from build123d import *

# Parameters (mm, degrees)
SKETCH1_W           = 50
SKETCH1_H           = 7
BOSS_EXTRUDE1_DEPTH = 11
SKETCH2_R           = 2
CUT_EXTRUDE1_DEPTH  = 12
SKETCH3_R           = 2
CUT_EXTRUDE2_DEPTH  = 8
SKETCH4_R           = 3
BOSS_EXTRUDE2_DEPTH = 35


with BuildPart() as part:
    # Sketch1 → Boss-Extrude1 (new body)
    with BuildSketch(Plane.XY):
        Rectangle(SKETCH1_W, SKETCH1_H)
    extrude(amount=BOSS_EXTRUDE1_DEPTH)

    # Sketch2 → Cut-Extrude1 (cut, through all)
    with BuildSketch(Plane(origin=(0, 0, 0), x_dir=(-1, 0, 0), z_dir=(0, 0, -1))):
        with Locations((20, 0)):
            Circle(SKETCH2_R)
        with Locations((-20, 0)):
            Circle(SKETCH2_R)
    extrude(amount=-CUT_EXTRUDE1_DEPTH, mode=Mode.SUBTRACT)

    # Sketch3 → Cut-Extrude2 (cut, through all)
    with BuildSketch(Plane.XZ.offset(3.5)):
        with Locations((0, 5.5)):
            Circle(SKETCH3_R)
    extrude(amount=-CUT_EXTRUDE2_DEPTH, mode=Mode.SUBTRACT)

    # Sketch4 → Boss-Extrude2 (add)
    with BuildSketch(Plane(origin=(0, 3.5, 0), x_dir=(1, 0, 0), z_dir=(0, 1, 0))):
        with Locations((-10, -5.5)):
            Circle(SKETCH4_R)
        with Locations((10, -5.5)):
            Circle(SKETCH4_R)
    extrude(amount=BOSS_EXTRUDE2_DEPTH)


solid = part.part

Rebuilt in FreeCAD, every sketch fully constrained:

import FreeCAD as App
import Part
import Sketcher

doc = App.newDocument("Part")
body = doc.addObject("PartDesign::Body", "Body")

# Sketch on XY plane
sketch1 = body.newObject("Sketcher::SketchObject", "Sketch")
sketch1.AttachmentSupport = (doc.getObject("XY_Plane"), [""])
sketch1.MapMode = "FlatFace"
sketch1.addGeometry([
    Part.LineSegment(App.Vector(-25, 3.5, 0), App.Vector(-25, -3.5, 0)),
    Part.LineSegment(App.Vector(-25, -3.5, 0), App.Vector(25, -3.5, 0)),
    Part.LineSegment(App.Vector(25, -3.5, 0), App.Vector(25, 3.5, 0)),
    Part.LineSegment(App.Vector(25, 3.5, 0), App.Vector(-25, 3.5, 0)),
], False)
sketch1.addConstraint([
    Sketcher.Constraint("Coincident", 0, 2, 1, 1),
    Sketcher.Constraint("Coincident", 1, 2, 2, 1),
    Sketcher.Constraint("Coincident", 2, 2, 3, 1),
    Sketcher.Constraint("Coincident", 3, 2, 0, 1),
    Sketcher.Constraint("Vertical", 0),
    Sketcher.Constraint("Horizontal", 1),
    Sketcher.Constraint("Vertical", 2),
    Sketcher.Constraint("Horizontal", 3),
    Sketcher.Constraint("Symmetric", 0, 2, 2, 2, -1, 1),
    Sketcher.Constraint("DistanceX", 1, 1, 1, 2, 50.0),
    Sketcher.Constraint("DistanceY", 0, 2, 0, 1, 7.0),
])
pad1 = body.newObject("PartDesign::Pad", "Pad")
pad1.Profile = sketch1
pad1.Length = 11

# Sketch on XY plane
sketch2 = body.newObject("Sketcher::SketchObject", "Sketch001")
sketch2.AttachmentSupport = (doc.getObject("XY_Plane"), [""])
sketch2.MapMode = "FlatFace"
sketch2.addGeometry([
    Part.Circle(App.Vector(-20, 0, 0), App.Vector(0, 0, 1), 2),
    Part.Circle(App.Vector(20, 0, 0), App.Vector(0, 0, 1), 2),
], False)
sketch2.addConstraint([
    Sketcher.Constraint("Equal", 0, 1),
    Sketcher.Constraint("Symmetric", 0, 3, 1, 3, -1, 1),
    Sketcher.Constraint("PointOnObject", 0, 3, -1),
    Sketcher.Constraint("Diameter", 0, 4.0),
    Sketcher.Constraint("DistanceX", 0, 3, -1, 1, 20.0),
])
pocket1 = body.newObject("PartDesign::Pocket", "Pocket")
pocket1.Profile = sketch2
pocket1.Type = "ThroughAll"
pocket1.Reversed = True

# Sketch on XZ plane
sketch3 = body.newObject("Sketcher::SketchObject", "Sketch002")
sketch3.AttachmentSupport = (doc.getObject("XZ_Plane"), [""])
sketch3.MapMode = "FlatFace"
sketch3.AttachmentOffset = App.Placement(App.Vector(0, 0, 3.5), App.Rotation())
sketch3.addGeometry(Part.Circle(App.Vector(0, 5.5, 0), App.Vector(0, 0, 1), 2), False)
sketch3.addConstraint([
    Sketcher.Constraint("PointOnObject", 0, 3, -2),
    Sketcher.Constraint("Diameter", 0, 4.0),
    Sketcher.Constraint("DistanceY", -1, 1, 0, 3, 5.5),
])
pocket2 = body.newObject("PartDesign::Pocket", "Pocket001")
pocket2.Profile = sketch3
pocket2.Type = "ThroughAll"

# Sketch on XZ plane
sketch4 = body.newObject("Sketcher::SketchObject", "Sketch003")
sketch4.AttachmentSupport = (doc.getObject("XZ_Plane"), [""])
sketch4.MapMode = "FlatFace"
sketch4.AttachmentOffset = App.Placement(App.Vector(0, 0, -3.5), App.Rotation())
sketch4.addGeometry([
    Part.Circle(App.Vector(-10, 5.5, 0), App.Vector(0, 0, 1), 3),
    Part.Circle(App.Vector(10, 5.5, 0), App.Vector(0, 0, 1), 3),
], False)
sketch4.addConstraint([
    Sketcher.Constraint("Equal", 0, 1),
    Sketcher.Constraint("Symmetric", 0, 3, 1, 3, -2),
    Sketcher.Constraint("Diameter", 0, 6.0),
    Sketcher.Constraint("DistanceX", 0, 3, -1, 1, 10.0),
    Sketcher.Constraint("DistanceY", -1, 1, 0, 3, 5.5),
])
pad2 = body.newObject("PartDesign::Pad", "Pad001")
pad2.Profile = sketch4
pad2.Length = 35
pad2.Reversed = True

doc.recompute()
